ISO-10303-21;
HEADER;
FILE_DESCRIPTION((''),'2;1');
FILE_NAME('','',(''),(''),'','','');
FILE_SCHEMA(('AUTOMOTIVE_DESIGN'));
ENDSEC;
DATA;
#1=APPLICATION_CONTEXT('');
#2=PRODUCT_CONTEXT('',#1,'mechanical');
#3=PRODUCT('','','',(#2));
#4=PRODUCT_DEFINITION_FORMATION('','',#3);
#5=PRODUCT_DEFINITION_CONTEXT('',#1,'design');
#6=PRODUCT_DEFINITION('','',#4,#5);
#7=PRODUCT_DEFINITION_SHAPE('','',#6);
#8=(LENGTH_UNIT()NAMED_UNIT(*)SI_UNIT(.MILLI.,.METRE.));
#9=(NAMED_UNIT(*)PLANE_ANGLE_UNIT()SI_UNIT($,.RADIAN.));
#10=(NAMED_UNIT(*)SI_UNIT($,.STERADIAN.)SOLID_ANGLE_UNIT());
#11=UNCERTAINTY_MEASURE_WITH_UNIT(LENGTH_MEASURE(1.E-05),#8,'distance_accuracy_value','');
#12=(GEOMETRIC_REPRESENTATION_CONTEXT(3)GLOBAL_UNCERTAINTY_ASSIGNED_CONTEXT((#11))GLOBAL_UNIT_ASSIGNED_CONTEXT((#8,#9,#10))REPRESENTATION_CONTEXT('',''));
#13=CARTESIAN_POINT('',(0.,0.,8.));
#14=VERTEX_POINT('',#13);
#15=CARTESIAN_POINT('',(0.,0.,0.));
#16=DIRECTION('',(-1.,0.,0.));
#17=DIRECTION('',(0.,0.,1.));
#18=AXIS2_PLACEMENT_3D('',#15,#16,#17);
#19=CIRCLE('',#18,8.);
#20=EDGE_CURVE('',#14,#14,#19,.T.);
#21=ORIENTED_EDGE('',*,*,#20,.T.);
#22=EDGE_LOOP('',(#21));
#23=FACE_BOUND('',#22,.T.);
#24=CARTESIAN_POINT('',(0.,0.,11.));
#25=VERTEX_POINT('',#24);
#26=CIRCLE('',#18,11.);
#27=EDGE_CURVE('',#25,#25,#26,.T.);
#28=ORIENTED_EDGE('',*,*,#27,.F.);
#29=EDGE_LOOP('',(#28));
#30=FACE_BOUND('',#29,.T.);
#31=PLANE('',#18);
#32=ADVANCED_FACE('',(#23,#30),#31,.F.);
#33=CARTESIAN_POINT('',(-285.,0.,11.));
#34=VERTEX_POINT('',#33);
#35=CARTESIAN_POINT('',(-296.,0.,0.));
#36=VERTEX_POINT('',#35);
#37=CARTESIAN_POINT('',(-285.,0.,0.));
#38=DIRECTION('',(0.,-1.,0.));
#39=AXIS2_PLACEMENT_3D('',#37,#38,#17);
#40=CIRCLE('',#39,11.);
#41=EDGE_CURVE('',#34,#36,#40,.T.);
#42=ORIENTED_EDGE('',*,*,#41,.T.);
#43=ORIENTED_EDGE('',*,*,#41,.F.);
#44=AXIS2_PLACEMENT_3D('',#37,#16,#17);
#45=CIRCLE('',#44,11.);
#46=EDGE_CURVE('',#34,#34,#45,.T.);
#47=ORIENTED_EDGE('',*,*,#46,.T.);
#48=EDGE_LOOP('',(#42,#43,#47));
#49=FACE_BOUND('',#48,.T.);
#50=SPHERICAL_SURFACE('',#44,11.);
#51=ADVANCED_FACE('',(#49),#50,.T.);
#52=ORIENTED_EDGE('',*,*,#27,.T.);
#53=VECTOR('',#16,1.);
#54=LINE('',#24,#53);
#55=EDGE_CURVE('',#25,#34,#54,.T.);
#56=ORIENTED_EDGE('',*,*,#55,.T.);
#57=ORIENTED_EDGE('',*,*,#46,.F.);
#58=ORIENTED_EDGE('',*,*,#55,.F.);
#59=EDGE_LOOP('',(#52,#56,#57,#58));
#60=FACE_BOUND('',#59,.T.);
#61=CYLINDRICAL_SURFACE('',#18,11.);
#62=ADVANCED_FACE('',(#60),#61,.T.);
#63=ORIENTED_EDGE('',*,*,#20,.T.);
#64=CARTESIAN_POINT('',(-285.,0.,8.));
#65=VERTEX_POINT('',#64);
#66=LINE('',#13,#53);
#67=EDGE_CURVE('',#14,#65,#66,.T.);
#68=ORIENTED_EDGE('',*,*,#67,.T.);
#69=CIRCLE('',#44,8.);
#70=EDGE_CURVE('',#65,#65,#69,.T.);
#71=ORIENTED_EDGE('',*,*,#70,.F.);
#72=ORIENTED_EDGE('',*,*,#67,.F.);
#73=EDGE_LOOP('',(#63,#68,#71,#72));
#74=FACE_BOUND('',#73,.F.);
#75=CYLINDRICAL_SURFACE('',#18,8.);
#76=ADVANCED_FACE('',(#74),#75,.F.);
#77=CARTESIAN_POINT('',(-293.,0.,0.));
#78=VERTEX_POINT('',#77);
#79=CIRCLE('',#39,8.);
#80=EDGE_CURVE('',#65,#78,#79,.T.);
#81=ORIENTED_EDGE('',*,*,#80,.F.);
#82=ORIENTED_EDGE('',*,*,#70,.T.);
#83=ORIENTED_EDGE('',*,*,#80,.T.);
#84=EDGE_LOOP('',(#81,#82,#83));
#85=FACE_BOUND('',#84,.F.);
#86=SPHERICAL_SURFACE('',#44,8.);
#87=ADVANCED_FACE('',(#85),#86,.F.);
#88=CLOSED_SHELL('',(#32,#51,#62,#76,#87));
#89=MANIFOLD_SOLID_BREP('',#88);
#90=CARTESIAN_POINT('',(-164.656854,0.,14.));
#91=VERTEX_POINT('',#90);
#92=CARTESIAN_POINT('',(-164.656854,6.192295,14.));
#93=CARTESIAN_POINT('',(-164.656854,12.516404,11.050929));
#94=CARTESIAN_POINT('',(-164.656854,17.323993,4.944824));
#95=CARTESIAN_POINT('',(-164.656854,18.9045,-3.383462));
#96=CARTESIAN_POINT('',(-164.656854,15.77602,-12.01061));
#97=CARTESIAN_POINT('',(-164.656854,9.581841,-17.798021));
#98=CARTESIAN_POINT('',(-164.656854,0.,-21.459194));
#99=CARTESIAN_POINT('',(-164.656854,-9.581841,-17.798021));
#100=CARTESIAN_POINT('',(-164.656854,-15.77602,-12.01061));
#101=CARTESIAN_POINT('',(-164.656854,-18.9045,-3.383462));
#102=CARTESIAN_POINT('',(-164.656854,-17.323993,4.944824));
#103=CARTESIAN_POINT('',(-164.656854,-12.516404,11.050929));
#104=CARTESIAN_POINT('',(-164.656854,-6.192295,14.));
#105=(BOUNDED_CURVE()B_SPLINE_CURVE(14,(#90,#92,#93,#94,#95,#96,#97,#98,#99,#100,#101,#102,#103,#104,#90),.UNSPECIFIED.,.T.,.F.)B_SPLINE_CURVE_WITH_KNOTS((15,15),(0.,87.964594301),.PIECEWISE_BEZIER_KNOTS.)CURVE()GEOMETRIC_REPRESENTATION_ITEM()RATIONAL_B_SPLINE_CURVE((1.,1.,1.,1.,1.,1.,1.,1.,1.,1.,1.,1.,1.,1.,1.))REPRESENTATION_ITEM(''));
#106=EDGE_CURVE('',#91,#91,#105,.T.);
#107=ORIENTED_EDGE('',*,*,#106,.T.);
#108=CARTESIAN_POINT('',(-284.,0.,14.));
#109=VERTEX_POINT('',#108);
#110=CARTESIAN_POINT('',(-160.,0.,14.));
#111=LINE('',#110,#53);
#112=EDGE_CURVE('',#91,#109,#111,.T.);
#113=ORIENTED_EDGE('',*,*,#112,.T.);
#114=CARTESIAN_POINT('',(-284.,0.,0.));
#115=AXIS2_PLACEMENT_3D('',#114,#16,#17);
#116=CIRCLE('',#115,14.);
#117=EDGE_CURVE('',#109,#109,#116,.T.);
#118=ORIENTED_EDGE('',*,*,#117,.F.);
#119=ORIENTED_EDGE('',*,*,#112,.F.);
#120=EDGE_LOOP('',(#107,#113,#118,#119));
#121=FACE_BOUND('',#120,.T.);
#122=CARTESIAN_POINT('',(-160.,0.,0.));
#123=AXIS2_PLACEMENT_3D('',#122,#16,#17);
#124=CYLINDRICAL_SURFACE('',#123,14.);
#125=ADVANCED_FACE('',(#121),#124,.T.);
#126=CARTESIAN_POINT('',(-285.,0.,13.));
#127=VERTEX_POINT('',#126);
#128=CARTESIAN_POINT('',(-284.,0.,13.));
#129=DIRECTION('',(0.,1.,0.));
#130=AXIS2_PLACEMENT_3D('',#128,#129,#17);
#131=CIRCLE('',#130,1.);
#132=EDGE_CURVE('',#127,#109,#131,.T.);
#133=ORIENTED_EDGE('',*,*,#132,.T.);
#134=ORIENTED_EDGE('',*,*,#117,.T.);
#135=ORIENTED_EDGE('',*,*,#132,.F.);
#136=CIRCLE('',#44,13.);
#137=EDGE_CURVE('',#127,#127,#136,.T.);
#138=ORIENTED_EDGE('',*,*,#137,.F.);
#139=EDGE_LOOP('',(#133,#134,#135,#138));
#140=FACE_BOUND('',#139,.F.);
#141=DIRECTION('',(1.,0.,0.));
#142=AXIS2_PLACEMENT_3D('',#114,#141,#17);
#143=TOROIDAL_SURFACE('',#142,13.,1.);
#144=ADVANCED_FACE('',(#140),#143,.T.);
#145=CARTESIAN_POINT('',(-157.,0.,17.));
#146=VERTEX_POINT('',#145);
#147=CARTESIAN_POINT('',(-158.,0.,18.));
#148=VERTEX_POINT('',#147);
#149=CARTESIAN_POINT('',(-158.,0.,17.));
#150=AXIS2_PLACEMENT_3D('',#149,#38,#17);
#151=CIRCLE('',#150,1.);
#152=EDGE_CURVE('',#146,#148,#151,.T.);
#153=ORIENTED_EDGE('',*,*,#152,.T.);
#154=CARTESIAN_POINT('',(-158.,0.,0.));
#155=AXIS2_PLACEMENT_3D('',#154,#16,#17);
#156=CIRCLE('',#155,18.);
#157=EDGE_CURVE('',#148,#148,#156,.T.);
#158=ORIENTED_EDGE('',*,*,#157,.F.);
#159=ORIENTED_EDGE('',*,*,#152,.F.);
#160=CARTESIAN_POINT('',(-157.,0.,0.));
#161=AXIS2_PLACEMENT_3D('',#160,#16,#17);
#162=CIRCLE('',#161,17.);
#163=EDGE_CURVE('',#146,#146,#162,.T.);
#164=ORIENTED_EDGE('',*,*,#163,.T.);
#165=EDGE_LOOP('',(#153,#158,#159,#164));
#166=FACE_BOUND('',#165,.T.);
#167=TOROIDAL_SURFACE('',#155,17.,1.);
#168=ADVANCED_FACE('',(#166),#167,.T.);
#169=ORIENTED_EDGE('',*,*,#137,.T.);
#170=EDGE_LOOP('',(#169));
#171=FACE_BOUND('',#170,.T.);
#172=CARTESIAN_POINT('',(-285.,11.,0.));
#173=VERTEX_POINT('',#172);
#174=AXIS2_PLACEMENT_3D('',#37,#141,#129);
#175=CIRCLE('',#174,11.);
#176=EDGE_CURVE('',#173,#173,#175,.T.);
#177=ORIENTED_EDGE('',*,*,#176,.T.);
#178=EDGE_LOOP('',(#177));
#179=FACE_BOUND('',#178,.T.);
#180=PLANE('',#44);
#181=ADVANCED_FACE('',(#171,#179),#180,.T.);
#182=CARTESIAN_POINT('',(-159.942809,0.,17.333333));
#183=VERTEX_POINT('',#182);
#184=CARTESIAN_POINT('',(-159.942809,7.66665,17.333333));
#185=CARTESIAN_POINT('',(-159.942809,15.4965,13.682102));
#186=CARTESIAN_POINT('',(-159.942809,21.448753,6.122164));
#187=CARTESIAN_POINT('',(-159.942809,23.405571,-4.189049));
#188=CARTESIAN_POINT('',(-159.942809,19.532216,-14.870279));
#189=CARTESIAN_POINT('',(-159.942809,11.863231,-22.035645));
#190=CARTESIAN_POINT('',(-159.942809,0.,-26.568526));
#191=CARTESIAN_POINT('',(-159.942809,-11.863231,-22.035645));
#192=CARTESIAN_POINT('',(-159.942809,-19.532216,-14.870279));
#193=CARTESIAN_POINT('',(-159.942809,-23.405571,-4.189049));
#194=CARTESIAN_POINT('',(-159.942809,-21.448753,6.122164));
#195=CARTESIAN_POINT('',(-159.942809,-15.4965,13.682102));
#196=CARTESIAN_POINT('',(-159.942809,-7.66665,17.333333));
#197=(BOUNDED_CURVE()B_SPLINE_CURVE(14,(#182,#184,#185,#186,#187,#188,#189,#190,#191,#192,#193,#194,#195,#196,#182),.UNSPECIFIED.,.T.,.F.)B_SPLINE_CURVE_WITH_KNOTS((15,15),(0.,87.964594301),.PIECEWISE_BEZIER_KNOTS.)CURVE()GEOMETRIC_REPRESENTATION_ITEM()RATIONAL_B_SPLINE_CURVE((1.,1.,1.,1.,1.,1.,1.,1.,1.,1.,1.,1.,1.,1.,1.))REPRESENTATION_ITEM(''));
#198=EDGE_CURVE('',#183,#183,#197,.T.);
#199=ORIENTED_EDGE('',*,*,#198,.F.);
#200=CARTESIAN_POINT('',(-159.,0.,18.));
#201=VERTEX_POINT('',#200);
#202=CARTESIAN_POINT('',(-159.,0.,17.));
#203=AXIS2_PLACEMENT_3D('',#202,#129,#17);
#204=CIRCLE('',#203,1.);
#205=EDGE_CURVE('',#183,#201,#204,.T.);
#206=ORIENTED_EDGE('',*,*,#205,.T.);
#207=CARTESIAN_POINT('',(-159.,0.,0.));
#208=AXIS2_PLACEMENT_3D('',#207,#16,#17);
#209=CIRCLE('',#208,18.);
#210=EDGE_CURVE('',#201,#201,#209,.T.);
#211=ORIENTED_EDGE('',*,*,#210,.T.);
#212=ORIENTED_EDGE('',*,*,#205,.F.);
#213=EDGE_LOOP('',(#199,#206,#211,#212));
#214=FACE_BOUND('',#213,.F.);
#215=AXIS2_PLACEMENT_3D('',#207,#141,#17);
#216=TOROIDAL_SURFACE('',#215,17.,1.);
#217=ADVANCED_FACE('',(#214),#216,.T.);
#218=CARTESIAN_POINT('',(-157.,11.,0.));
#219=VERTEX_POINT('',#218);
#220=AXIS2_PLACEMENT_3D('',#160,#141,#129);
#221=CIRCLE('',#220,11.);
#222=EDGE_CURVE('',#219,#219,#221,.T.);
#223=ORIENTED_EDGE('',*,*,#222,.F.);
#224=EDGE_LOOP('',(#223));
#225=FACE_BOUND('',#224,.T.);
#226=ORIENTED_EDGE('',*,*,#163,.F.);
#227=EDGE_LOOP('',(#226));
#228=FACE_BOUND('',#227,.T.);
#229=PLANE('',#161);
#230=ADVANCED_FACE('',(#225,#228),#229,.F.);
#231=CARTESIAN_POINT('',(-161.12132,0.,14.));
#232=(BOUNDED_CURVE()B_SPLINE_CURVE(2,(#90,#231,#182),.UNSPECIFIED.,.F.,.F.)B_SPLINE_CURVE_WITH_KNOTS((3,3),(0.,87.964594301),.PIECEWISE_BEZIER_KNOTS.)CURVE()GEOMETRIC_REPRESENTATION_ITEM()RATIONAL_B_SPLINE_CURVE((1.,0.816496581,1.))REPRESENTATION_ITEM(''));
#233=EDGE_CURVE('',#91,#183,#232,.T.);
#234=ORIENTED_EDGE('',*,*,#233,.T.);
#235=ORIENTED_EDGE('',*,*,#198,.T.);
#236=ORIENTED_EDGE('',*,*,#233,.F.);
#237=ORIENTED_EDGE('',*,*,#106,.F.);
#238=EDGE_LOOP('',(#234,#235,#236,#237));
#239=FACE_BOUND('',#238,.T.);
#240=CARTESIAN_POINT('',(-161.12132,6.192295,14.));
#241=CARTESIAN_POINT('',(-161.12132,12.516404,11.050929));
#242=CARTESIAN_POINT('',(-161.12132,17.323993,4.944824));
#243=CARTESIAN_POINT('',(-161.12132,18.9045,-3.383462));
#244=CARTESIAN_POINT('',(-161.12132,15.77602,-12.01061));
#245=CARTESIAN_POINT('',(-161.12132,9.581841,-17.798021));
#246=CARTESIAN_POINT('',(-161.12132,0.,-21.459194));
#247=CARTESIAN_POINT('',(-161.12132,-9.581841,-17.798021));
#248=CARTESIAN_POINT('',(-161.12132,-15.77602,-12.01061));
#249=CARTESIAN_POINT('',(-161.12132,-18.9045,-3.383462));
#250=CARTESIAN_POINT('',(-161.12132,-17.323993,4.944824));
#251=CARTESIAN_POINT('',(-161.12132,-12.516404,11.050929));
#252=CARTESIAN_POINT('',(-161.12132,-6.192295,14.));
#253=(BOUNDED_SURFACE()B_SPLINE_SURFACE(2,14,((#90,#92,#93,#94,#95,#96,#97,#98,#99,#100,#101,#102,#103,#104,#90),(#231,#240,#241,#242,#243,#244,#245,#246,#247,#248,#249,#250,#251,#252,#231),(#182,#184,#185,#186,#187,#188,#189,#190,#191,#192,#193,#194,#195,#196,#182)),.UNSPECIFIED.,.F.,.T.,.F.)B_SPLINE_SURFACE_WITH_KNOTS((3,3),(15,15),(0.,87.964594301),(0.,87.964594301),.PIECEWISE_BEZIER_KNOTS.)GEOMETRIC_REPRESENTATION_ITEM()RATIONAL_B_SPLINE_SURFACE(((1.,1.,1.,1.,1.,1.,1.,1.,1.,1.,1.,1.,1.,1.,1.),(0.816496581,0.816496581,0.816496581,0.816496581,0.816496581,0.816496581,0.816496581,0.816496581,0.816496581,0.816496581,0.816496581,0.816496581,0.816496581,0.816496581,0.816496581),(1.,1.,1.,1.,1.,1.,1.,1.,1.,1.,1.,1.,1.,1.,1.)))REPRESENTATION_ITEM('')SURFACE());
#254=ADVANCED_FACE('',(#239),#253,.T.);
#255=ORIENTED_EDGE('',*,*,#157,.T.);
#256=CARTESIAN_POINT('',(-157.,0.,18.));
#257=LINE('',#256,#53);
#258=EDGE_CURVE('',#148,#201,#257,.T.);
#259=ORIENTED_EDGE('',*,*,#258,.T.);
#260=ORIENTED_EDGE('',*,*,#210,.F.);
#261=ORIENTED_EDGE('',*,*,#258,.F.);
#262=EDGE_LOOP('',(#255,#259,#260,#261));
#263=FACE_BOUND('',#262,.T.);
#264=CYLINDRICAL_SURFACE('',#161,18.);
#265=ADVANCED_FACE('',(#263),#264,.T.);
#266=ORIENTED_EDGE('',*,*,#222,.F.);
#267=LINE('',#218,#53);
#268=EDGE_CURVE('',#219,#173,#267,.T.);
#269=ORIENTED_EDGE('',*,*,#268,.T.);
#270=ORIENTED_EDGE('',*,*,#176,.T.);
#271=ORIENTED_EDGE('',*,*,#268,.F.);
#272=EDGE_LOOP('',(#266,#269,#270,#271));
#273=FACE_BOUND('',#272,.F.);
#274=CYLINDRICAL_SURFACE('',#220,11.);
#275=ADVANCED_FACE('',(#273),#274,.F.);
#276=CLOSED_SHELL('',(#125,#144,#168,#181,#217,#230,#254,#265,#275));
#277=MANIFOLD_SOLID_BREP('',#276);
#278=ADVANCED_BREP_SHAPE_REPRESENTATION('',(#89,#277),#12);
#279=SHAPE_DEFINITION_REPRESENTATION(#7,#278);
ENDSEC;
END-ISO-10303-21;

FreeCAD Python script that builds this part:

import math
import FreeCAD as App
import Part
import Sketcher
from FreeCAD import Vector


def edges_at(feature, points):
    """Names of the edges that pass closest to the given points."""
    edges = feature.Shape.Edges
    near = lambda p: min(range(len(edges)), key=lambda i: edges[i].distToShape(Part.Vertex(*p))[0])
    return sorted({f"Edge{near(p) + 1}" for p in points})


def faces_at(feature, points):
    """Names of the faces that lie closest to the given points."""
    faces = feature.Shape.Faces
    near = lambda p: min(range(len(faces)), key=lambda i: faces[i].distToShape(Part.Vertex(*p))[0])
    return sorted({f"Face{near(p) + 1}" for p in points})


def add_polygon(sketch, points):
    """Adds a closed chain of lines whose ends are joined by coincident constraints."""
    first, n = sketch.GeometryCount, len(points)
    for a, b in zip(points, points[1:] + points[:1]):
        sketch.addGeometry(Part.LineSegment(App.Vector(*a, 0), App.Vector(*b, 0)), False)
    for i in range(n):
        sketch.addConstraint(Sketcher.Constraint("Coincident", first + i, 2, first + (i + 1) % n, 1))

doc = App.newDocument("Part")
body = doc.addObject("PartDesign::Body", "Body")

sketch1 = body.newObject("Sketcher::SketchObject", "Sketch")
sketch1.AttachmentSupport = (doc.getObject("XZ_Plane"), [""])
sketch1.MapMode = "FlatFace"
sketch1.addGeometry([
    Part.LineSegment(Vector(-296, 0, 0), Vector(0, 0, 0)),
    Part.LineSegment(Vector(0, 0, 0), Vector(0, 11, 0)),
    Part.LineSegment(Vector(0, 11, 0), Vector(-285, 11, 0)),
    Part.ArcOfCircle(Part.Circle(Vector(-285, 0, 0), Vector(0, 0, 1), 11), math.radians(90), math.radians(180)),
], False)
sketch1.addConstraint([
    Sketcher.Constraint("Coincident", 0, 2, 1, 1),
    Sketcher.Constraint("Coincident", 1, 2, 2, 1),
    Sketcher.Constraint("Tangent", 2, 2, 3, 1),
    Sketcher.Constraint("Coincident", 3, 2, 0, 1),
    Sketcher.Constraint("Horizontal", 0),
    Sketcher.Constraint("Vertical", 1),
    Sketcher.Constraint("Horizontal", 2),
    Sketcher.Constraint("Coincident", 0, 2, -1, 1),
    Sketcher.Constraint("PointOnObject", 3, 3, -1),
    Sketcher.Constraint("Radius", 3, 11.0),
    Sketcher.Constraint("DistanceX", 0, 1, 0, 2, 296.0),
])
revolution = body.newObject("PartDesign::Revolution", "Revolution")
revolution.Profile = sketch1
revolution.ReferenceAxis = (sketch1, ["H_Axis"])
revolution.Angle = 360
doc.recompute()

thickness = body.newObject("PartDesign::Thickness", "Thickness")
thickness.Base = (revolution, faces_at(revolution, [(0, 0, 0)]))
thickness.Value = 3
thickness.Reversed = True
thickness.Join = "Arc"
body2 = doc.addObject("PartDesign::Body", "Body001")

sketch2 = body2.newObject("Sketcher::SketchObject", "Sketch001")
sketch2.AttachmentSupport = (doc.getObject("XZ_Plane001"), [""])
sketch2.MapMode = "FlatFace"
add_polygon(sketch2, [(-285, 14), (-285, 0), (-157, 0), (-157, 18), (-160, 18), (-160, 14)])
sketch2.addConstraint([
    Sketcher.Constraint("Vertical", 0),
    Sketcher.Constraint("Horizontal", 1),
    Sketcher.Constraint("Vertical", 2),
    Sketcher.Constraint("Horizontal", 3),
    Sketcher.Constraint("Vertical", 4),
    Sketcher.Constraint("Horizontal", 5),
    Sketcher.Constraint("PointOnObject", 0, 2, -1),
    Sketcher.Constraint("DistanceX", 1, 1, 1, 2, 128.0),
    Sketcher.Constraint("DistanceX", 3, 2, 3, 1, 3.0),
    Sketcher.Constraint("DistanceY", 0, 2, 0, 1, 14.0),
    Sketcher.Constraint("DistanceY", 2, 1, 2, 2, 18.0),
    Sketcher.Constraint("DistanceX", 0, 2, -1, 1, 285.0),
])
revolution2 = body2.newObject("PartDesign::Revolution", "Revolution001")
revolution2.Profile = sketch2
revolution2.ReferenceAxis = (sketch2, ["H_Axis"])
revolution2.Angle = 360

sketch3 = body2.newObject("Sketcher::SketchObject", "Sketch002")
sketch3.AttachmentSupport = (doc.getObject("YZ_Plane001"), [""])
sketch3.MapMode = "FlatFace"
sketch3.AttachmentOffset = App.Placement(Vector(0, 0, -157), App.Rotation())
sketch3.addGeometry(Part.Circle(Vector(0, 0, 0), Vector(0, 0, 1), 11), False)
sketch3.addConstraint([
    Sketcher.Constraint("Coincident", 0, 3, -1, 1),
    Sketcher.Constraint("Diameter", 0, 22.0),
])
pocket1 = body2.newObject("PartDesign::Pocket", "Pocket")
pocket1.Profile = sketch3
pocket1.Type = "ThroughAll"
doc.recompute()

fillet = body2.newObject("PartDesign::Fillet", "Fillet")
fillet.Base = (pocket1, edges_at(pocket1, [
    (-285, 0, -14),
    (-157, 0, -18),
    (-160, 0, -18),
    (-158.5, 0, 18),
]))
fillet.Radius = 1
doc.recompute()

fillet2 = body2.newObject("PartDesign::Fillet", "Fillet001")
fillet2.Base = (fillet, edges_at(fillet, [(-160, 0, -14)]))
fillet2.Radius = 5

doc.recompute()
